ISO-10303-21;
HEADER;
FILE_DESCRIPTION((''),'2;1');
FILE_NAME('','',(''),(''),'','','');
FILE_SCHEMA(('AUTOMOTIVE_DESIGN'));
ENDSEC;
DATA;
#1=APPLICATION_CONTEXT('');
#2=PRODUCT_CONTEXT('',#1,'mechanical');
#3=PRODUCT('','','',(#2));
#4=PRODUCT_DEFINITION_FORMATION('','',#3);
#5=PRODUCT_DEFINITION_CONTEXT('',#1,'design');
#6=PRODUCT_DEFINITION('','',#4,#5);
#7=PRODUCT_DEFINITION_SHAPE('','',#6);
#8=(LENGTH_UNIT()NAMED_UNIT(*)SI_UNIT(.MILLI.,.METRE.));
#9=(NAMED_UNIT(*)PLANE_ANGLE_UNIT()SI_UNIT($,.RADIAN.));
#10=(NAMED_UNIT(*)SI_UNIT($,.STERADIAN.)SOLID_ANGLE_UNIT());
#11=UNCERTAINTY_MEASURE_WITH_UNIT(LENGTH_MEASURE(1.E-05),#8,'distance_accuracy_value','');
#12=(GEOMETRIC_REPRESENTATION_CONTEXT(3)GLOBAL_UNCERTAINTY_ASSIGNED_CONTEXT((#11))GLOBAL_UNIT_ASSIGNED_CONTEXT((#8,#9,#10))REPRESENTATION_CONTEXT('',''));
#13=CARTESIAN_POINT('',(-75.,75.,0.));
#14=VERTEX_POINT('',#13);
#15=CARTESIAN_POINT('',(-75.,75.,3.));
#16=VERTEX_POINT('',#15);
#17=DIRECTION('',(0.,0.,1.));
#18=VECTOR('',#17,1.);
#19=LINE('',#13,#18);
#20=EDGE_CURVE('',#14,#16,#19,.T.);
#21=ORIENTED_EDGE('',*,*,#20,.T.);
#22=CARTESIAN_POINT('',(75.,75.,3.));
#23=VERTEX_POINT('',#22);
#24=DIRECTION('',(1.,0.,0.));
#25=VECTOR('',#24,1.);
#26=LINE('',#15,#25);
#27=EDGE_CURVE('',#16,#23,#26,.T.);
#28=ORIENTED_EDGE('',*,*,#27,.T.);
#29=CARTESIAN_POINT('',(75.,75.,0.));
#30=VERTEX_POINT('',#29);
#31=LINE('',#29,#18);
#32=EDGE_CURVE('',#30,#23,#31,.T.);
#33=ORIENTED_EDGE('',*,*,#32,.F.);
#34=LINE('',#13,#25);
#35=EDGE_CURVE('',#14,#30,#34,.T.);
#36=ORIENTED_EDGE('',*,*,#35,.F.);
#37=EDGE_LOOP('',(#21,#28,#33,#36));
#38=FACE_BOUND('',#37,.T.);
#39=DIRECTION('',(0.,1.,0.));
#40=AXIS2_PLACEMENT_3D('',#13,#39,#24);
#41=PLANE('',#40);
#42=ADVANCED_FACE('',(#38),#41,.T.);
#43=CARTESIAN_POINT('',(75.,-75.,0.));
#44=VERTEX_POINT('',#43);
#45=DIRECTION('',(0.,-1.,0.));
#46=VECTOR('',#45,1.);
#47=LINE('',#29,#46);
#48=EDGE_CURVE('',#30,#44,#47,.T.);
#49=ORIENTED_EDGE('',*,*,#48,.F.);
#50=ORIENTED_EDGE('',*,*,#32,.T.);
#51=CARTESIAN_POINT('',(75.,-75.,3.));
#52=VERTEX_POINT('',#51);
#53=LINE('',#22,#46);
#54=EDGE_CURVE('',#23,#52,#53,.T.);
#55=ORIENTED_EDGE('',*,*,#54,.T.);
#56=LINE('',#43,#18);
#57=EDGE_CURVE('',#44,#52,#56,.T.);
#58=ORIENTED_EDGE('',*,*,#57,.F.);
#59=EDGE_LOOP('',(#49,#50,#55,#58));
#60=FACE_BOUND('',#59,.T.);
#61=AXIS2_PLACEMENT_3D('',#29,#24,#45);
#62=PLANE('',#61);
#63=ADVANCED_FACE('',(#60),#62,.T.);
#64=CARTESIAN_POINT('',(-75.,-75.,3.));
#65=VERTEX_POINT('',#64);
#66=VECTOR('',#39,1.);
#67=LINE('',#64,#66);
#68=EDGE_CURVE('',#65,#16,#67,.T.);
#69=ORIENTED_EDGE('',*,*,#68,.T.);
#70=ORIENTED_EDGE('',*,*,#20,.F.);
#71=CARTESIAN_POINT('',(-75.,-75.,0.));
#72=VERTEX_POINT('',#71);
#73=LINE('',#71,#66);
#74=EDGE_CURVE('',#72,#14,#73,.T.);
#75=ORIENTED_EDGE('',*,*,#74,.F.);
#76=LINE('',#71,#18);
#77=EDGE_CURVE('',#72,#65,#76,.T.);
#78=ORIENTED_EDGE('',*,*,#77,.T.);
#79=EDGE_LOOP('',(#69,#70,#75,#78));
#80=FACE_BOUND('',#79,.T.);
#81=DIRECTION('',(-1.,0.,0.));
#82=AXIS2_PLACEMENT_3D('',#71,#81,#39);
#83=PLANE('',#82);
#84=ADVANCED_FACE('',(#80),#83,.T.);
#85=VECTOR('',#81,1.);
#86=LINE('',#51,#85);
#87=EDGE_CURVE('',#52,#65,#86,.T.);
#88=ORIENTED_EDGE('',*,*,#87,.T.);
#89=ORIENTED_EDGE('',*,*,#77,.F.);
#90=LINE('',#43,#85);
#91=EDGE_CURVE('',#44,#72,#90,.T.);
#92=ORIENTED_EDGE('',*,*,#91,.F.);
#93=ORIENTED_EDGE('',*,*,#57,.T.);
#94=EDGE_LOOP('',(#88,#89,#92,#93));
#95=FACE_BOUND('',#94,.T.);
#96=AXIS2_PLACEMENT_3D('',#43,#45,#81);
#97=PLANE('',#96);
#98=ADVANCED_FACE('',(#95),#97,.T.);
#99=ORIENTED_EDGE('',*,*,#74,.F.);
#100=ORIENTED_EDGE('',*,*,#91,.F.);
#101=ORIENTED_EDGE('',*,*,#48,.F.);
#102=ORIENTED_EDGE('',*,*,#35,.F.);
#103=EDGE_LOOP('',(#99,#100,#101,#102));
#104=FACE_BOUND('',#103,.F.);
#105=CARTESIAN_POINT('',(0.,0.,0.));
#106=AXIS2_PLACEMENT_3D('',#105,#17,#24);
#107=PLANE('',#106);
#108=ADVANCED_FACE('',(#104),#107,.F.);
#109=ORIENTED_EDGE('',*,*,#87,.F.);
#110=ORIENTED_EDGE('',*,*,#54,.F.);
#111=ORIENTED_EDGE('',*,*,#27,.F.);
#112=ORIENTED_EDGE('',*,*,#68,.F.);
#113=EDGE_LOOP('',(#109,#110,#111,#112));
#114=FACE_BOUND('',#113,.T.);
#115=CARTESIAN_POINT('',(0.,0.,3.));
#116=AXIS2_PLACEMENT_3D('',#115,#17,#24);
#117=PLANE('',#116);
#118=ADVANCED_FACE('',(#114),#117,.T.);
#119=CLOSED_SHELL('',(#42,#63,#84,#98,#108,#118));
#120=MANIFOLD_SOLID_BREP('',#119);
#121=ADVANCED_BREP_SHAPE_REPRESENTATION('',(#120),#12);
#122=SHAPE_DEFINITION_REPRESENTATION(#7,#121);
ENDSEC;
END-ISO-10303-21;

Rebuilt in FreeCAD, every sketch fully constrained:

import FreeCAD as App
import Part
import Sketcher
Q = App.Units.Quantity


def add_polygon(sketch, points):
    """Adds a closed chain of lines whose ends are joined by coincident constraints."""
    first, n = sketch.GeometryCount, len(points)
    for a, b in zip(points, points[1:] + points[:1]):
        sketch.addGeometry(Part.LineSegment(App.Vector(*a, 0), App.Vector(*b, 0)), False)
    for i in range(n):
        sketch.addConstraint(Sketcher.Constraint("Coincident", first + i, 2, first + (i + 1) % n, 1))

doc = App.newDocument("Part")
body = doc.addObject("PartDesign::Body", "Body")

# Sketch on XY plane
sketch1 = doc.addObject("Sketcher::SketchObject", "Sketch")
body.addObject(sketch1)
sketch1.AttachmentSupport = (doc.XY_Plane, [""])
sketch1.MapMode = "FlatFace"
add_polygon(sketch1, [(75, 75), (-75, 75), (-75, -75), (75, -75)])  # lines 0-3
sketch1.addConstraint([
    Sketcher.Constraint("Horizontal", 0),
    Sketcher.Constraint("Vertical", 1),
    Sketcher.Constraint("Horizontal", 2),
    Sketcher.Constraint("Vertical", 3),
    Sketcher.Constraint("Symmetric", 0, 2, 2, 2, -1, 1),
    Sketcher.Constraint("Equal", 2, 1),
    Sketcher.Constraint("DistanceX", 0, 2, 0, 1, Q("150 mm")),
])
pad1 = doc.addObject("PartDesign::Pad", "Pad")
body.addObject(pad1)
pad1.Profile = sketch1
pad1.Length = 3

doc.recompute()
